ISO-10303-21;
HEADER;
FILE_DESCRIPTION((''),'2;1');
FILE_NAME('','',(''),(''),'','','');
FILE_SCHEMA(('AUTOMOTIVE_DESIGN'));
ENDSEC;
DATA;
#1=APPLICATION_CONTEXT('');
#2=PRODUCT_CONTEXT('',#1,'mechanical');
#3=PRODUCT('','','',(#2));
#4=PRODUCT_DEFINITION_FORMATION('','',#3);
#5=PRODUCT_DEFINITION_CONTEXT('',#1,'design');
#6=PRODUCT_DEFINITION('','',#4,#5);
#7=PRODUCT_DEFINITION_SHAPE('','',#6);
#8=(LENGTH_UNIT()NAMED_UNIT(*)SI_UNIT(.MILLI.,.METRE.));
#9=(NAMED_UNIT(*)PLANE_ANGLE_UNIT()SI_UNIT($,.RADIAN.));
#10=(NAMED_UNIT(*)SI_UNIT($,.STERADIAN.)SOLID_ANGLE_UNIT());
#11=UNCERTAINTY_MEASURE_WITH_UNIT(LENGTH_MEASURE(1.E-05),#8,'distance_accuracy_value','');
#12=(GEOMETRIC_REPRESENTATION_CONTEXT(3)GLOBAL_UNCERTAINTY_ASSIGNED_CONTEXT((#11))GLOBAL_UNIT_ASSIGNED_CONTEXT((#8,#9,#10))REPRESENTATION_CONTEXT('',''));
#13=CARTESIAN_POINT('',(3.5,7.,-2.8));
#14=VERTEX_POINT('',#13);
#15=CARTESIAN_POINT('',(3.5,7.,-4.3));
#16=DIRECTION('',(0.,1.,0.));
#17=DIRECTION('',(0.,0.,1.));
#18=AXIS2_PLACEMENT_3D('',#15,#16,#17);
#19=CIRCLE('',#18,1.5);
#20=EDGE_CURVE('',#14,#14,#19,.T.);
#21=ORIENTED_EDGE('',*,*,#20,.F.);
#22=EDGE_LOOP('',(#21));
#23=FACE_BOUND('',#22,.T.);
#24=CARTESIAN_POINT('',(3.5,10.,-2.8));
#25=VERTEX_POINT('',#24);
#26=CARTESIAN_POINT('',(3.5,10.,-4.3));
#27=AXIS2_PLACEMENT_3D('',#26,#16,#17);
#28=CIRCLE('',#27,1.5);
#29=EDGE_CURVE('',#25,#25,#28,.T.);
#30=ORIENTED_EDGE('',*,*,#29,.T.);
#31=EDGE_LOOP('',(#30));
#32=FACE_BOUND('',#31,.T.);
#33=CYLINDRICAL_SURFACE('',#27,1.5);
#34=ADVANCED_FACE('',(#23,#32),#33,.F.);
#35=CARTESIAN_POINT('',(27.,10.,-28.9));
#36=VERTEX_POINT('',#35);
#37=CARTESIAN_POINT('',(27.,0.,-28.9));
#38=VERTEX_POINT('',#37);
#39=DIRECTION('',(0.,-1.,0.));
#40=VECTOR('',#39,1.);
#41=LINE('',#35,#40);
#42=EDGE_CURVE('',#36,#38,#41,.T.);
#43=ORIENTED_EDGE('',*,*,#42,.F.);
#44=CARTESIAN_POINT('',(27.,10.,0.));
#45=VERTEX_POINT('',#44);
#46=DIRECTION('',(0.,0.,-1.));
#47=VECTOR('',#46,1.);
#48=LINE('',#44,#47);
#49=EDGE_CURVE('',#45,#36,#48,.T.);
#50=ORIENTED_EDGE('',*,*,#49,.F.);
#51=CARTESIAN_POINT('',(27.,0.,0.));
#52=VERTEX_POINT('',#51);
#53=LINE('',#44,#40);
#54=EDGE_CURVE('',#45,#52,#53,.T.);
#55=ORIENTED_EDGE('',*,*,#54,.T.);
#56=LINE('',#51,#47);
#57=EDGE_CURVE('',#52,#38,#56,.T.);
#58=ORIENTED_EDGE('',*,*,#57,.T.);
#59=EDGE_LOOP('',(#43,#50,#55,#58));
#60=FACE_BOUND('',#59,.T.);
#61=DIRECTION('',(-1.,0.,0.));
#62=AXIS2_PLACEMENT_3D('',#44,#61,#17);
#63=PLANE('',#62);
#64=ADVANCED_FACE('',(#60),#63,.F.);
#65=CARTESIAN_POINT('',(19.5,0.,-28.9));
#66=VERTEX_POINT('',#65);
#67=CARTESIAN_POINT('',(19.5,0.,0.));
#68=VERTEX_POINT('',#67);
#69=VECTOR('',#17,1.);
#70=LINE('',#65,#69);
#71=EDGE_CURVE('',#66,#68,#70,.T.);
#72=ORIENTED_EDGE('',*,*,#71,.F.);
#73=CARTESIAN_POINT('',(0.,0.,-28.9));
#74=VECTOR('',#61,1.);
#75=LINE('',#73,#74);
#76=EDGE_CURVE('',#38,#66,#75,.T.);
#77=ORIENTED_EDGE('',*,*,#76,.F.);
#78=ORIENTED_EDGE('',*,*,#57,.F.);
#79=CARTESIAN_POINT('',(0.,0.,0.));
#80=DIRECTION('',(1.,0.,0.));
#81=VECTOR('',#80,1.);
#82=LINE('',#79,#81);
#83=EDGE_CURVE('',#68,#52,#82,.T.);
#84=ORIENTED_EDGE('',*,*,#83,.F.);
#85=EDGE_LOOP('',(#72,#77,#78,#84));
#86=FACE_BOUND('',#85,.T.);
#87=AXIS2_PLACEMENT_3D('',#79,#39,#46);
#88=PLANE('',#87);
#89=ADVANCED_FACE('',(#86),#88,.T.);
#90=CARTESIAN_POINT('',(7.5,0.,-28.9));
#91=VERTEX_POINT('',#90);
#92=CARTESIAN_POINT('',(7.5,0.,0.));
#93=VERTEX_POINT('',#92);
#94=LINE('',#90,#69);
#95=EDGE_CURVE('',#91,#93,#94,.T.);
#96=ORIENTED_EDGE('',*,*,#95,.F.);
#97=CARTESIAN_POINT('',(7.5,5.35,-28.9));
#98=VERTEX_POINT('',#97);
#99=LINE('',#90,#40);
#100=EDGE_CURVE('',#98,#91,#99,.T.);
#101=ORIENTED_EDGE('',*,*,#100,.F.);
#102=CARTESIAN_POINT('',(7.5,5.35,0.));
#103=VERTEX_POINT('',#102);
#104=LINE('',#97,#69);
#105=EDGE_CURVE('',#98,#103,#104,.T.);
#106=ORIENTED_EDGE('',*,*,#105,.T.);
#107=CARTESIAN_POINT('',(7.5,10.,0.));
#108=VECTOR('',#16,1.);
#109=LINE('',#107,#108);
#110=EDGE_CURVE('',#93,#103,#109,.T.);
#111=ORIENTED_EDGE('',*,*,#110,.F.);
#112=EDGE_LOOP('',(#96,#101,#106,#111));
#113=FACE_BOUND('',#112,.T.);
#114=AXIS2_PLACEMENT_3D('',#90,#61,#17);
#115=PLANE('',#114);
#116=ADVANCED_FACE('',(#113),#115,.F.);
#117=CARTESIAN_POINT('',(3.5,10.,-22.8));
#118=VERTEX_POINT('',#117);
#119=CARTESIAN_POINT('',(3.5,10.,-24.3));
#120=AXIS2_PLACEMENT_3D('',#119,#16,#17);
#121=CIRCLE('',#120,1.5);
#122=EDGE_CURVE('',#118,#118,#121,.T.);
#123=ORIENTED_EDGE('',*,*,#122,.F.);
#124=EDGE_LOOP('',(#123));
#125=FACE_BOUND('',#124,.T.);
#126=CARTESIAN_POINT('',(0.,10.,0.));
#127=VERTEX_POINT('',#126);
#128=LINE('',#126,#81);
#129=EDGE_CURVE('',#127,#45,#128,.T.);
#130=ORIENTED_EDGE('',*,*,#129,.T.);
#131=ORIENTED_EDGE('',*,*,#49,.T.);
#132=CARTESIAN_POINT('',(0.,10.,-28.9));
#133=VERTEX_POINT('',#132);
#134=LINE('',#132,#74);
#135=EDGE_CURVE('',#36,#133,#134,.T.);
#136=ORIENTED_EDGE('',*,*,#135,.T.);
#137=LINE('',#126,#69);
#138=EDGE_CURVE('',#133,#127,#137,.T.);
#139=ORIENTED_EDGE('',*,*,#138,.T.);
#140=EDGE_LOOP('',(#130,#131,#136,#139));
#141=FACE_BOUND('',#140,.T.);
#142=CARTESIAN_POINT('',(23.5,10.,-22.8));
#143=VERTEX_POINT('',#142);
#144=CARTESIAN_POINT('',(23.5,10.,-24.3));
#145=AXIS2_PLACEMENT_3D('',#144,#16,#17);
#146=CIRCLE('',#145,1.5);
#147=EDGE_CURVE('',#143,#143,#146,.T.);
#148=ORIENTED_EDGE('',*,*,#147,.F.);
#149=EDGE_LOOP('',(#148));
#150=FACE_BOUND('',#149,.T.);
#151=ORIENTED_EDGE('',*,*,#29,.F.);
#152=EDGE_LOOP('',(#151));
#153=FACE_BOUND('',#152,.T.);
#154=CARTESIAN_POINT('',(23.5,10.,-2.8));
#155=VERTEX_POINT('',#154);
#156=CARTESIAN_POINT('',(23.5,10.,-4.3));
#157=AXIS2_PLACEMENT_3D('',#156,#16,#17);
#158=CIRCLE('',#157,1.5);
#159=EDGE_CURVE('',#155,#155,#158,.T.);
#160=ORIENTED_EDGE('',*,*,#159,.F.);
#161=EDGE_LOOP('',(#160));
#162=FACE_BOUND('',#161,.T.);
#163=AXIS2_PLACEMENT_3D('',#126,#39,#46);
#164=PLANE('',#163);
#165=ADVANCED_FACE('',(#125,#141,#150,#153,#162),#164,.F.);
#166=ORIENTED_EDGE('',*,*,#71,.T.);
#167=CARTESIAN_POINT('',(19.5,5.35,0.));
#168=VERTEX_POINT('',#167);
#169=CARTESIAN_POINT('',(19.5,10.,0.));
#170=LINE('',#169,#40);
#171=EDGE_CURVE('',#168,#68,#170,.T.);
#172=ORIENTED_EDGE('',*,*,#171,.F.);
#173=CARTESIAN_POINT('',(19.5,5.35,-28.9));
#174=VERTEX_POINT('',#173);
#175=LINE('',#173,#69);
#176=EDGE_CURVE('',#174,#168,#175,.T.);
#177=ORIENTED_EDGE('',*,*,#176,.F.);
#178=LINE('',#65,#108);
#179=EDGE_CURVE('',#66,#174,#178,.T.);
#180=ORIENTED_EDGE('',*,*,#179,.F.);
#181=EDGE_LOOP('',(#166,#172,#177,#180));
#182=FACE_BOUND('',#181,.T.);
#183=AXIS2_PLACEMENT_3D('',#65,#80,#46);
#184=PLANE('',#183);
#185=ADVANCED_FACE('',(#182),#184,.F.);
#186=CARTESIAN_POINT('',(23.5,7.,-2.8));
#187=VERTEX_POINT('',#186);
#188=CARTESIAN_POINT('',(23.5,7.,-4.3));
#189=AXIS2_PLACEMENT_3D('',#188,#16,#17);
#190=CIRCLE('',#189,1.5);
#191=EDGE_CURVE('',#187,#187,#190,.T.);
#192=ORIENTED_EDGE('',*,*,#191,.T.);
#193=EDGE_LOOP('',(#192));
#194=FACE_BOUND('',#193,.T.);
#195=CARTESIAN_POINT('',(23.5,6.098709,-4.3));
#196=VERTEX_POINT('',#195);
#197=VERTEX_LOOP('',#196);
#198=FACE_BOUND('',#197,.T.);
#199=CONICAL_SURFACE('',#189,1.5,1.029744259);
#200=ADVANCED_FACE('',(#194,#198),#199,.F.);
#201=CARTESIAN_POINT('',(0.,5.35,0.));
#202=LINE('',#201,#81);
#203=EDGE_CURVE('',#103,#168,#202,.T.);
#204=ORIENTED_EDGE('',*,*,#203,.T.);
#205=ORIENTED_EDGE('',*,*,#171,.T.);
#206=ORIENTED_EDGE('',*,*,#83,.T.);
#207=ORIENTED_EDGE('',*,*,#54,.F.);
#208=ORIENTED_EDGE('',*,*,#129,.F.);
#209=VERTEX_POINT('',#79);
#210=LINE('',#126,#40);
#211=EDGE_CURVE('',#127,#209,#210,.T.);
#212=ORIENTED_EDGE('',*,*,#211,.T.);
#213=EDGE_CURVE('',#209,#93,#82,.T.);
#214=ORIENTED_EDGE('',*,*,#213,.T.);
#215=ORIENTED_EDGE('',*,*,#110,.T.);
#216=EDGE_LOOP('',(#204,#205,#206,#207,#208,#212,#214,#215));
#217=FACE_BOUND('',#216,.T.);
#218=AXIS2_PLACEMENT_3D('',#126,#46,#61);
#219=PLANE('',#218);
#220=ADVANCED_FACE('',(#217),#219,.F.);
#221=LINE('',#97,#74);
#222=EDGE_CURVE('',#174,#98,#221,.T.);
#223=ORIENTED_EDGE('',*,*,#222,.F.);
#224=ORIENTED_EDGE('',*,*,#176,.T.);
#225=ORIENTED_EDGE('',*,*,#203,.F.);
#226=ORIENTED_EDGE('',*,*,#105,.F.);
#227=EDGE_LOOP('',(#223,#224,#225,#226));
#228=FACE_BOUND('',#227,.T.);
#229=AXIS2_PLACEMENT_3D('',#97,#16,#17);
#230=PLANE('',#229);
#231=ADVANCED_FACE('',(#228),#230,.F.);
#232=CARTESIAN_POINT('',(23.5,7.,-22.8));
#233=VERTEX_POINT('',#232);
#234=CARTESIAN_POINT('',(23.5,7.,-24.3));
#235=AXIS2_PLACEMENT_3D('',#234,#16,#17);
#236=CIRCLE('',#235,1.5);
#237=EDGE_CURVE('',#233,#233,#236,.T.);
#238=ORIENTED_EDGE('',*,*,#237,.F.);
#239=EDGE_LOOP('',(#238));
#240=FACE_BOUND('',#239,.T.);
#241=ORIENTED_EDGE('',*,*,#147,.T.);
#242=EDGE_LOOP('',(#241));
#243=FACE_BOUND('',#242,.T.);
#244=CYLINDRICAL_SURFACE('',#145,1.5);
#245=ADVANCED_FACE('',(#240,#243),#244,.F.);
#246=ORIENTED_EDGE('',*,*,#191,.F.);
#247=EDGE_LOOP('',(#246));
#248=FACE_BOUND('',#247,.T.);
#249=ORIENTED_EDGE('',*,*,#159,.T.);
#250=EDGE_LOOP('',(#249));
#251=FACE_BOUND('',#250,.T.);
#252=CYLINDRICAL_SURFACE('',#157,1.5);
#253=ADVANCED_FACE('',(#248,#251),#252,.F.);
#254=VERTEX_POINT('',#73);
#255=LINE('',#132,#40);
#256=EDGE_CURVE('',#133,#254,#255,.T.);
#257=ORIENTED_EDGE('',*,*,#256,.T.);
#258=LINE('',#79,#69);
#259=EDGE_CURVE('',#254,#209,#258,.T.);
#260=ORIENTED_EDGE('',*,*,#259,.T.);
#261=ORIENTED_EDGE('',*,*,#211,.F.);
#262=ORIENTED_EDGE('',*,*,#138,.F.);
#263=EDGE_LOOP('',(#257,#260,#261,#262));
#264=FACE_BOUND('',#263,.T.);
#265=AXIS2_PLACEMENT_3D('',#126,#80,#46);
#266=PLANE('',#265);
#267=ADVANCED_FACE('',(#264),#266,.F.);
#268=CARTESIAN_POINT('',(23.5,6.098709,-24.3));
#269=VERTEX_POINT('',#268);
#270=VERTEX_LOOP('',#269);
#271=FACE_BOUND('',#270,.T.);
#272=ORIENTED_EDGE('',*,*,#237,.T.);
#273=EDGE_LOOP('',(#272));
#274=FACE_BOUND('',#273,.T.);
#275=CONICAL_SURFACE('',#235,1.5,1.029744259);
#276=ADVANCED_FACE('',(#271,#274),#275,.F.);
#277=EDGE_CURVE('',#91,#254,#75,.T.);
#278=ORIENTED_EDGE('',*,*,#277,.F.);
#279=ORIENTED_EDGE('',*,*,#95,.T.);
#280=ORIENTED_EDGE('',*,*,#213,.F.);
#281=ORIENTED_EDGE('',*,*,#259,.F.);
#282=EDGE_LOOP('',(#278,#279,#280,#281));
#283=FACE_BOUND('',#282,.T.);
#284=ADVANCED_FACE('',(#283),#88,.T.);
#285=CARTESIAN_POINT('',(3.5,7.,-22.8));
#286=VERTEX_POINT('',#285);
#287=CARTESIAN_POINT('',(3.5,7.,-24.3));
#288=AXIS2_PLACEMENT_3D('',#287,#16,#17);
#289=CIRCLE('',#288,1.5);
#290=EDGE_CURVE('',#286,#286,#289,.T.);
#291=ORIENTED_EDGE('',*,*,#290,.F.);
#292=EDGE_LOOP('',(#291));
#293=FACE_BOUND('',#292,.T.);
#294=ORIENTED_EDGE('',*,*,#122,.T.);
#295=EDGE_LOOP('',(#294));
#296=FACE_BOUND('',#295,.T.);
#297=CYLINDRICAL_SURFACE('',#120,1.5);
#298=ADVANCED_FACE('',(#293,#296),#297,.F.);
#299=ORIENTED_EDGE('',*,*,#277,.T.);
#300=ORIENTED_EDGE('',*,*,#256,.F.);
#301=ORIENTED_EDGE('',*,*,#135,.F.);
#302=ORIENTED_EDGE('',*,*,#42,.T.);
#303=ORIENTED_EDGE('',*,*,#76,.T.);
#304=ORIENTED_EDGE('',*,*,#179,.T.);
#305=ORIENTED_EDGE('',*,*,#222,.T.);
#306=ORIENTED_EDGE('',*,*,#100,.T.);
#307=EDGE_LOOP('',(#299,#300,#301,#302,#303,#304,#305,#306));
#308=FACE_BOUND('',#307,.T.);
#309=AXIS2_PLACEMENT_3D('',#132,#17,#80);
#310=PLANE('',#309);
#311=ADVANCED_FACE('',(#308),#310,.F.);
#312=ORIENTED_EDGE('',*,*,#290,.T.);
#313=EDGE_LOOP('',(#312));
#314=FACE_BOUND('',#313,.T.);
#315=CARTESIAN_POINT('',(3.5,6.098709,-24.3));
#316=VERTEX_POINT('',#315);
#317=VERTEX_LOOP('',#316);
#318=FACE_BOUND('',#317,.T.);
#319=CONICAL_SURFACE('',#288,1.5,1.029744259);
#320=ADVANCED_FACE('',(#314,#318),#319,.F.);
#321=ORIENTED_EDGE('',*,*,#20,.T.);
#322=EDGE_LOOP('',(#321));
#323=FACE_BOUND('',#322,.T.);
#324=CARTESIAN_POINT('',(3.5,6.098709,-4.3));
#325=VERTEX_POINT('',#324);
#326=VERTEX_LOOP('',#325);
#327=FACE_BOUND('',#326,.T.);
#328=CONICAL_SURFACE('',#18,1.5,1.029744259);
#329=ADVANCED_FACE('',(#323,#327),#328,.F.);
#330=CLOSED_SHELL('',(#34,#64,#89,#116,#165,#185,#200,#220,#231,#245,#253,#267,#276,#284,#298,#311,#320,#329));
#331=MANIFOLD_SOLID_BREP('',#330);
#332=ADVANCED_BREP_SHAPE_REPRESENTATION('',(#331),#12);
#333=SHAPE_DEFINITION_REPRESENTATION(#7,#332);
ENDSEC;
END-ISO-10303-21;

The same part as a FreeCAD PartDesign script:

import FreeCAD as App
import Part
import Sketcher
from FreeCAD import Vector


def add_polygon(sketch, points):
    """Adds a closed chain of lines whose ends are joined by coincident constraints."""
    first, n = sketch.GeometryCount, len(points)
    for a, b in zip(points, points[1:] + points[:1]):
        sketch.addGeometry(Part.LineSegment(App.Vector(*a, 0), App.Vector(*b, 0)), False)
    for i in range(n):
        sketch.addConstraint(Sketcher.Constraint("Coincident", first + i, 2, first + (i + 1) % n, 1))

doc = App.newDocument("Part")
params = doc.addObject("Spreadsheet::Sheet", "Params")
for row, (alias, value) in enumerate([
    ("sketch1_width", "27 mm"),
    ("sketch1_height", "28.9 mm"),
    ("pad1_length", "10 mm"),
    ("sketch2_width", "12 mm"),
    ("sketch2_height", "5.35 mm"),
    ("sketch3_diameter", "3 mm"),
    ("hole_diameter", "3 mm"),
    ("hole_depth", "3 mm"),
], start=1):
    params.set(f"A{row}", alias)
    params.set(f"B{row}", "=" + value)
    params.setAlias(f"B{row}", alias)

body = doc.addObject("PartDesign::Body", "Body")

# Sketch on XZ plane
sketch1 = body.newObject("Sketcher::SketchObject", "Sketch")
sketch1.AttachmentSupport = (doc.getObject("XZ_Plane"), [""])
sketch1.MapMode = "FlatFace"
add_polygon(sketch1, [(0, -29), (0, 0), (27, 0), (27, -29)])  # lines 0-3
sketch1.addConstraint([
    Sketcher.Constraint("Vertical", 0),
    Sketcher.Constraint("Horizontal", 1),
    Sketcher.Constraint("Vertical", 2),
    Sketcher.Constraint("Horizontal", 3),
    Sketcher.Constraint("Coincident", 0, 2, -1, 1),
    Sketcher.Constraint("DistanceX", 1, 1, 1, 2, 27.0),
    Sketcher.Constraint("DistanceY", 0, 1, 0, 2, 28.9),
])
sketch1.setExpression("Constraints[9]", "Params.sketch1_width")
sketch1.setExpression("Constraints[10]", "Params.sketch1_height")
pad1 = body.newObject("PartDesign::Pad", "Pad")
pad1.Profile = sketch1
pad1.setExpression("Length", "Params.pad1_length")
pad1.Reversed = True

# Sketch on XY plane
sketch2 = body.newObject("Sketcher::SketchObject", "Sketch001")
sketch2.AttachmentSupport = (doc.getObject("XY_Plane"), [""])
sketch2.MapMode = "FlatFace"
add_polygon(sketch2, [(8, 5), (8, 0), (20, 0), (20, 5)])  # lines 0-3
sketch2.addConstraint([
    Sketcher.Constraint("Vertical", 0),
    Sketcher.Constraint("Horizontal", 1),
    Sketcher.Constraint("Vertical", 2),
    Sketcher.Constraint("Horizontal", 3),
    Sketcher.Constraint("PointOnObject", 0, 2, -1),
    Sketcher.Constraint("DistanceX", 1, 1, 1, 2, 12.0),
    Sketcher.Constraint("DistanceY", 0, 2, 0, 1, 5.35),
    Sketcher.Constraint("DistanceX", -1, 1, 0, 2, 7.5),
])
sketch2.setExpression("Constraints[9]", "Params.sketch2_width")
sketch2.setExpression("Constraints[10]", "Params.sketch2_height")
pocket1 = body.newObject("PartDesign::Pocket", "Pocket")
pocket1.Profile = sketch2
pocket1.Type = "ThroughAll"
pocket1.Midplane = True

# Sketch on XZ plane
sketch3 = body.newObject("Sketcher::SketchObject", "Sketch002")
sketch3.AttachmentSupport = (doc.getObject("XZ_Plane"), [""])
sketch3.MapMode = "FlatFace"
sketch3.AttachmentOffset = App.Placement(Vector(0, 0, -10), App.Rotation())
sketch3.addGeometry([
    Part.Circle(Vector(3.5, -24.3, 0), Vector(0, 0, 1), 1.5),
    Part.Circle(Vector(23.5, -24.3, 0), Vector(0, 0, 1), 1.5),
    Part.Circle(Vector(3.5, -4.3, 0), Vector(0, 0, 1), 1.5),
    Part.Circle(Vector(23.5, -4.3, 0), Vector(0, 0, 1), 1.5),
], False)
sketch3.addConstraint([
    Sketcher.Constraint("Equal", 0, 1),
    Sketcher.Constraint("Equal", 1, 2),
    Sketcher.Constraint("Equal", 2, 3),
    Sketcher.Constraint("Horizontal", 0, 3, 1, 3),
    Sketcher.Constraint("Horizontal", 2, 3, 3, 3),
    Sketcher.Constraint("Vertical", 0, 3, 2, 3),
    Sketcher.Constraint("Vertical", 1, 3, 3, 3),
    Sketcher.Constraint("Diameter", 0, 3.0),
    Sketcher.Constraint("DistanceX", 0, 3, 1, 3, 20.0),
    Sketcher.Constraint("DistanceY", 0, 3, 2, 3, 20.0),
    Sketcher.Constraint("DistanceX", -1, 1, 0, 3, 3.5),
    Sketcher.Constraint("DistanceY", 0, 3, -1, 1, 24.3),
])
sketch3.setExpression("Constraints[7]", "Params.sketch3_diameter")
doc.recompute()
hole = body.newObject("PartDesign::Hole", "Hole")
hole.Profile = sketch3
hole.ThreadType = "None"
hole.setExpression("Diameter", "Params.hole_diameter")
hole.DepthType = "Dimension"
hole.setExpression("Depth", "Params.hole_depth")
hole.DrillPoint = "Angled"
hole.DrillPointAngle = 118
hole.Reversed = True

doc.recompute()
